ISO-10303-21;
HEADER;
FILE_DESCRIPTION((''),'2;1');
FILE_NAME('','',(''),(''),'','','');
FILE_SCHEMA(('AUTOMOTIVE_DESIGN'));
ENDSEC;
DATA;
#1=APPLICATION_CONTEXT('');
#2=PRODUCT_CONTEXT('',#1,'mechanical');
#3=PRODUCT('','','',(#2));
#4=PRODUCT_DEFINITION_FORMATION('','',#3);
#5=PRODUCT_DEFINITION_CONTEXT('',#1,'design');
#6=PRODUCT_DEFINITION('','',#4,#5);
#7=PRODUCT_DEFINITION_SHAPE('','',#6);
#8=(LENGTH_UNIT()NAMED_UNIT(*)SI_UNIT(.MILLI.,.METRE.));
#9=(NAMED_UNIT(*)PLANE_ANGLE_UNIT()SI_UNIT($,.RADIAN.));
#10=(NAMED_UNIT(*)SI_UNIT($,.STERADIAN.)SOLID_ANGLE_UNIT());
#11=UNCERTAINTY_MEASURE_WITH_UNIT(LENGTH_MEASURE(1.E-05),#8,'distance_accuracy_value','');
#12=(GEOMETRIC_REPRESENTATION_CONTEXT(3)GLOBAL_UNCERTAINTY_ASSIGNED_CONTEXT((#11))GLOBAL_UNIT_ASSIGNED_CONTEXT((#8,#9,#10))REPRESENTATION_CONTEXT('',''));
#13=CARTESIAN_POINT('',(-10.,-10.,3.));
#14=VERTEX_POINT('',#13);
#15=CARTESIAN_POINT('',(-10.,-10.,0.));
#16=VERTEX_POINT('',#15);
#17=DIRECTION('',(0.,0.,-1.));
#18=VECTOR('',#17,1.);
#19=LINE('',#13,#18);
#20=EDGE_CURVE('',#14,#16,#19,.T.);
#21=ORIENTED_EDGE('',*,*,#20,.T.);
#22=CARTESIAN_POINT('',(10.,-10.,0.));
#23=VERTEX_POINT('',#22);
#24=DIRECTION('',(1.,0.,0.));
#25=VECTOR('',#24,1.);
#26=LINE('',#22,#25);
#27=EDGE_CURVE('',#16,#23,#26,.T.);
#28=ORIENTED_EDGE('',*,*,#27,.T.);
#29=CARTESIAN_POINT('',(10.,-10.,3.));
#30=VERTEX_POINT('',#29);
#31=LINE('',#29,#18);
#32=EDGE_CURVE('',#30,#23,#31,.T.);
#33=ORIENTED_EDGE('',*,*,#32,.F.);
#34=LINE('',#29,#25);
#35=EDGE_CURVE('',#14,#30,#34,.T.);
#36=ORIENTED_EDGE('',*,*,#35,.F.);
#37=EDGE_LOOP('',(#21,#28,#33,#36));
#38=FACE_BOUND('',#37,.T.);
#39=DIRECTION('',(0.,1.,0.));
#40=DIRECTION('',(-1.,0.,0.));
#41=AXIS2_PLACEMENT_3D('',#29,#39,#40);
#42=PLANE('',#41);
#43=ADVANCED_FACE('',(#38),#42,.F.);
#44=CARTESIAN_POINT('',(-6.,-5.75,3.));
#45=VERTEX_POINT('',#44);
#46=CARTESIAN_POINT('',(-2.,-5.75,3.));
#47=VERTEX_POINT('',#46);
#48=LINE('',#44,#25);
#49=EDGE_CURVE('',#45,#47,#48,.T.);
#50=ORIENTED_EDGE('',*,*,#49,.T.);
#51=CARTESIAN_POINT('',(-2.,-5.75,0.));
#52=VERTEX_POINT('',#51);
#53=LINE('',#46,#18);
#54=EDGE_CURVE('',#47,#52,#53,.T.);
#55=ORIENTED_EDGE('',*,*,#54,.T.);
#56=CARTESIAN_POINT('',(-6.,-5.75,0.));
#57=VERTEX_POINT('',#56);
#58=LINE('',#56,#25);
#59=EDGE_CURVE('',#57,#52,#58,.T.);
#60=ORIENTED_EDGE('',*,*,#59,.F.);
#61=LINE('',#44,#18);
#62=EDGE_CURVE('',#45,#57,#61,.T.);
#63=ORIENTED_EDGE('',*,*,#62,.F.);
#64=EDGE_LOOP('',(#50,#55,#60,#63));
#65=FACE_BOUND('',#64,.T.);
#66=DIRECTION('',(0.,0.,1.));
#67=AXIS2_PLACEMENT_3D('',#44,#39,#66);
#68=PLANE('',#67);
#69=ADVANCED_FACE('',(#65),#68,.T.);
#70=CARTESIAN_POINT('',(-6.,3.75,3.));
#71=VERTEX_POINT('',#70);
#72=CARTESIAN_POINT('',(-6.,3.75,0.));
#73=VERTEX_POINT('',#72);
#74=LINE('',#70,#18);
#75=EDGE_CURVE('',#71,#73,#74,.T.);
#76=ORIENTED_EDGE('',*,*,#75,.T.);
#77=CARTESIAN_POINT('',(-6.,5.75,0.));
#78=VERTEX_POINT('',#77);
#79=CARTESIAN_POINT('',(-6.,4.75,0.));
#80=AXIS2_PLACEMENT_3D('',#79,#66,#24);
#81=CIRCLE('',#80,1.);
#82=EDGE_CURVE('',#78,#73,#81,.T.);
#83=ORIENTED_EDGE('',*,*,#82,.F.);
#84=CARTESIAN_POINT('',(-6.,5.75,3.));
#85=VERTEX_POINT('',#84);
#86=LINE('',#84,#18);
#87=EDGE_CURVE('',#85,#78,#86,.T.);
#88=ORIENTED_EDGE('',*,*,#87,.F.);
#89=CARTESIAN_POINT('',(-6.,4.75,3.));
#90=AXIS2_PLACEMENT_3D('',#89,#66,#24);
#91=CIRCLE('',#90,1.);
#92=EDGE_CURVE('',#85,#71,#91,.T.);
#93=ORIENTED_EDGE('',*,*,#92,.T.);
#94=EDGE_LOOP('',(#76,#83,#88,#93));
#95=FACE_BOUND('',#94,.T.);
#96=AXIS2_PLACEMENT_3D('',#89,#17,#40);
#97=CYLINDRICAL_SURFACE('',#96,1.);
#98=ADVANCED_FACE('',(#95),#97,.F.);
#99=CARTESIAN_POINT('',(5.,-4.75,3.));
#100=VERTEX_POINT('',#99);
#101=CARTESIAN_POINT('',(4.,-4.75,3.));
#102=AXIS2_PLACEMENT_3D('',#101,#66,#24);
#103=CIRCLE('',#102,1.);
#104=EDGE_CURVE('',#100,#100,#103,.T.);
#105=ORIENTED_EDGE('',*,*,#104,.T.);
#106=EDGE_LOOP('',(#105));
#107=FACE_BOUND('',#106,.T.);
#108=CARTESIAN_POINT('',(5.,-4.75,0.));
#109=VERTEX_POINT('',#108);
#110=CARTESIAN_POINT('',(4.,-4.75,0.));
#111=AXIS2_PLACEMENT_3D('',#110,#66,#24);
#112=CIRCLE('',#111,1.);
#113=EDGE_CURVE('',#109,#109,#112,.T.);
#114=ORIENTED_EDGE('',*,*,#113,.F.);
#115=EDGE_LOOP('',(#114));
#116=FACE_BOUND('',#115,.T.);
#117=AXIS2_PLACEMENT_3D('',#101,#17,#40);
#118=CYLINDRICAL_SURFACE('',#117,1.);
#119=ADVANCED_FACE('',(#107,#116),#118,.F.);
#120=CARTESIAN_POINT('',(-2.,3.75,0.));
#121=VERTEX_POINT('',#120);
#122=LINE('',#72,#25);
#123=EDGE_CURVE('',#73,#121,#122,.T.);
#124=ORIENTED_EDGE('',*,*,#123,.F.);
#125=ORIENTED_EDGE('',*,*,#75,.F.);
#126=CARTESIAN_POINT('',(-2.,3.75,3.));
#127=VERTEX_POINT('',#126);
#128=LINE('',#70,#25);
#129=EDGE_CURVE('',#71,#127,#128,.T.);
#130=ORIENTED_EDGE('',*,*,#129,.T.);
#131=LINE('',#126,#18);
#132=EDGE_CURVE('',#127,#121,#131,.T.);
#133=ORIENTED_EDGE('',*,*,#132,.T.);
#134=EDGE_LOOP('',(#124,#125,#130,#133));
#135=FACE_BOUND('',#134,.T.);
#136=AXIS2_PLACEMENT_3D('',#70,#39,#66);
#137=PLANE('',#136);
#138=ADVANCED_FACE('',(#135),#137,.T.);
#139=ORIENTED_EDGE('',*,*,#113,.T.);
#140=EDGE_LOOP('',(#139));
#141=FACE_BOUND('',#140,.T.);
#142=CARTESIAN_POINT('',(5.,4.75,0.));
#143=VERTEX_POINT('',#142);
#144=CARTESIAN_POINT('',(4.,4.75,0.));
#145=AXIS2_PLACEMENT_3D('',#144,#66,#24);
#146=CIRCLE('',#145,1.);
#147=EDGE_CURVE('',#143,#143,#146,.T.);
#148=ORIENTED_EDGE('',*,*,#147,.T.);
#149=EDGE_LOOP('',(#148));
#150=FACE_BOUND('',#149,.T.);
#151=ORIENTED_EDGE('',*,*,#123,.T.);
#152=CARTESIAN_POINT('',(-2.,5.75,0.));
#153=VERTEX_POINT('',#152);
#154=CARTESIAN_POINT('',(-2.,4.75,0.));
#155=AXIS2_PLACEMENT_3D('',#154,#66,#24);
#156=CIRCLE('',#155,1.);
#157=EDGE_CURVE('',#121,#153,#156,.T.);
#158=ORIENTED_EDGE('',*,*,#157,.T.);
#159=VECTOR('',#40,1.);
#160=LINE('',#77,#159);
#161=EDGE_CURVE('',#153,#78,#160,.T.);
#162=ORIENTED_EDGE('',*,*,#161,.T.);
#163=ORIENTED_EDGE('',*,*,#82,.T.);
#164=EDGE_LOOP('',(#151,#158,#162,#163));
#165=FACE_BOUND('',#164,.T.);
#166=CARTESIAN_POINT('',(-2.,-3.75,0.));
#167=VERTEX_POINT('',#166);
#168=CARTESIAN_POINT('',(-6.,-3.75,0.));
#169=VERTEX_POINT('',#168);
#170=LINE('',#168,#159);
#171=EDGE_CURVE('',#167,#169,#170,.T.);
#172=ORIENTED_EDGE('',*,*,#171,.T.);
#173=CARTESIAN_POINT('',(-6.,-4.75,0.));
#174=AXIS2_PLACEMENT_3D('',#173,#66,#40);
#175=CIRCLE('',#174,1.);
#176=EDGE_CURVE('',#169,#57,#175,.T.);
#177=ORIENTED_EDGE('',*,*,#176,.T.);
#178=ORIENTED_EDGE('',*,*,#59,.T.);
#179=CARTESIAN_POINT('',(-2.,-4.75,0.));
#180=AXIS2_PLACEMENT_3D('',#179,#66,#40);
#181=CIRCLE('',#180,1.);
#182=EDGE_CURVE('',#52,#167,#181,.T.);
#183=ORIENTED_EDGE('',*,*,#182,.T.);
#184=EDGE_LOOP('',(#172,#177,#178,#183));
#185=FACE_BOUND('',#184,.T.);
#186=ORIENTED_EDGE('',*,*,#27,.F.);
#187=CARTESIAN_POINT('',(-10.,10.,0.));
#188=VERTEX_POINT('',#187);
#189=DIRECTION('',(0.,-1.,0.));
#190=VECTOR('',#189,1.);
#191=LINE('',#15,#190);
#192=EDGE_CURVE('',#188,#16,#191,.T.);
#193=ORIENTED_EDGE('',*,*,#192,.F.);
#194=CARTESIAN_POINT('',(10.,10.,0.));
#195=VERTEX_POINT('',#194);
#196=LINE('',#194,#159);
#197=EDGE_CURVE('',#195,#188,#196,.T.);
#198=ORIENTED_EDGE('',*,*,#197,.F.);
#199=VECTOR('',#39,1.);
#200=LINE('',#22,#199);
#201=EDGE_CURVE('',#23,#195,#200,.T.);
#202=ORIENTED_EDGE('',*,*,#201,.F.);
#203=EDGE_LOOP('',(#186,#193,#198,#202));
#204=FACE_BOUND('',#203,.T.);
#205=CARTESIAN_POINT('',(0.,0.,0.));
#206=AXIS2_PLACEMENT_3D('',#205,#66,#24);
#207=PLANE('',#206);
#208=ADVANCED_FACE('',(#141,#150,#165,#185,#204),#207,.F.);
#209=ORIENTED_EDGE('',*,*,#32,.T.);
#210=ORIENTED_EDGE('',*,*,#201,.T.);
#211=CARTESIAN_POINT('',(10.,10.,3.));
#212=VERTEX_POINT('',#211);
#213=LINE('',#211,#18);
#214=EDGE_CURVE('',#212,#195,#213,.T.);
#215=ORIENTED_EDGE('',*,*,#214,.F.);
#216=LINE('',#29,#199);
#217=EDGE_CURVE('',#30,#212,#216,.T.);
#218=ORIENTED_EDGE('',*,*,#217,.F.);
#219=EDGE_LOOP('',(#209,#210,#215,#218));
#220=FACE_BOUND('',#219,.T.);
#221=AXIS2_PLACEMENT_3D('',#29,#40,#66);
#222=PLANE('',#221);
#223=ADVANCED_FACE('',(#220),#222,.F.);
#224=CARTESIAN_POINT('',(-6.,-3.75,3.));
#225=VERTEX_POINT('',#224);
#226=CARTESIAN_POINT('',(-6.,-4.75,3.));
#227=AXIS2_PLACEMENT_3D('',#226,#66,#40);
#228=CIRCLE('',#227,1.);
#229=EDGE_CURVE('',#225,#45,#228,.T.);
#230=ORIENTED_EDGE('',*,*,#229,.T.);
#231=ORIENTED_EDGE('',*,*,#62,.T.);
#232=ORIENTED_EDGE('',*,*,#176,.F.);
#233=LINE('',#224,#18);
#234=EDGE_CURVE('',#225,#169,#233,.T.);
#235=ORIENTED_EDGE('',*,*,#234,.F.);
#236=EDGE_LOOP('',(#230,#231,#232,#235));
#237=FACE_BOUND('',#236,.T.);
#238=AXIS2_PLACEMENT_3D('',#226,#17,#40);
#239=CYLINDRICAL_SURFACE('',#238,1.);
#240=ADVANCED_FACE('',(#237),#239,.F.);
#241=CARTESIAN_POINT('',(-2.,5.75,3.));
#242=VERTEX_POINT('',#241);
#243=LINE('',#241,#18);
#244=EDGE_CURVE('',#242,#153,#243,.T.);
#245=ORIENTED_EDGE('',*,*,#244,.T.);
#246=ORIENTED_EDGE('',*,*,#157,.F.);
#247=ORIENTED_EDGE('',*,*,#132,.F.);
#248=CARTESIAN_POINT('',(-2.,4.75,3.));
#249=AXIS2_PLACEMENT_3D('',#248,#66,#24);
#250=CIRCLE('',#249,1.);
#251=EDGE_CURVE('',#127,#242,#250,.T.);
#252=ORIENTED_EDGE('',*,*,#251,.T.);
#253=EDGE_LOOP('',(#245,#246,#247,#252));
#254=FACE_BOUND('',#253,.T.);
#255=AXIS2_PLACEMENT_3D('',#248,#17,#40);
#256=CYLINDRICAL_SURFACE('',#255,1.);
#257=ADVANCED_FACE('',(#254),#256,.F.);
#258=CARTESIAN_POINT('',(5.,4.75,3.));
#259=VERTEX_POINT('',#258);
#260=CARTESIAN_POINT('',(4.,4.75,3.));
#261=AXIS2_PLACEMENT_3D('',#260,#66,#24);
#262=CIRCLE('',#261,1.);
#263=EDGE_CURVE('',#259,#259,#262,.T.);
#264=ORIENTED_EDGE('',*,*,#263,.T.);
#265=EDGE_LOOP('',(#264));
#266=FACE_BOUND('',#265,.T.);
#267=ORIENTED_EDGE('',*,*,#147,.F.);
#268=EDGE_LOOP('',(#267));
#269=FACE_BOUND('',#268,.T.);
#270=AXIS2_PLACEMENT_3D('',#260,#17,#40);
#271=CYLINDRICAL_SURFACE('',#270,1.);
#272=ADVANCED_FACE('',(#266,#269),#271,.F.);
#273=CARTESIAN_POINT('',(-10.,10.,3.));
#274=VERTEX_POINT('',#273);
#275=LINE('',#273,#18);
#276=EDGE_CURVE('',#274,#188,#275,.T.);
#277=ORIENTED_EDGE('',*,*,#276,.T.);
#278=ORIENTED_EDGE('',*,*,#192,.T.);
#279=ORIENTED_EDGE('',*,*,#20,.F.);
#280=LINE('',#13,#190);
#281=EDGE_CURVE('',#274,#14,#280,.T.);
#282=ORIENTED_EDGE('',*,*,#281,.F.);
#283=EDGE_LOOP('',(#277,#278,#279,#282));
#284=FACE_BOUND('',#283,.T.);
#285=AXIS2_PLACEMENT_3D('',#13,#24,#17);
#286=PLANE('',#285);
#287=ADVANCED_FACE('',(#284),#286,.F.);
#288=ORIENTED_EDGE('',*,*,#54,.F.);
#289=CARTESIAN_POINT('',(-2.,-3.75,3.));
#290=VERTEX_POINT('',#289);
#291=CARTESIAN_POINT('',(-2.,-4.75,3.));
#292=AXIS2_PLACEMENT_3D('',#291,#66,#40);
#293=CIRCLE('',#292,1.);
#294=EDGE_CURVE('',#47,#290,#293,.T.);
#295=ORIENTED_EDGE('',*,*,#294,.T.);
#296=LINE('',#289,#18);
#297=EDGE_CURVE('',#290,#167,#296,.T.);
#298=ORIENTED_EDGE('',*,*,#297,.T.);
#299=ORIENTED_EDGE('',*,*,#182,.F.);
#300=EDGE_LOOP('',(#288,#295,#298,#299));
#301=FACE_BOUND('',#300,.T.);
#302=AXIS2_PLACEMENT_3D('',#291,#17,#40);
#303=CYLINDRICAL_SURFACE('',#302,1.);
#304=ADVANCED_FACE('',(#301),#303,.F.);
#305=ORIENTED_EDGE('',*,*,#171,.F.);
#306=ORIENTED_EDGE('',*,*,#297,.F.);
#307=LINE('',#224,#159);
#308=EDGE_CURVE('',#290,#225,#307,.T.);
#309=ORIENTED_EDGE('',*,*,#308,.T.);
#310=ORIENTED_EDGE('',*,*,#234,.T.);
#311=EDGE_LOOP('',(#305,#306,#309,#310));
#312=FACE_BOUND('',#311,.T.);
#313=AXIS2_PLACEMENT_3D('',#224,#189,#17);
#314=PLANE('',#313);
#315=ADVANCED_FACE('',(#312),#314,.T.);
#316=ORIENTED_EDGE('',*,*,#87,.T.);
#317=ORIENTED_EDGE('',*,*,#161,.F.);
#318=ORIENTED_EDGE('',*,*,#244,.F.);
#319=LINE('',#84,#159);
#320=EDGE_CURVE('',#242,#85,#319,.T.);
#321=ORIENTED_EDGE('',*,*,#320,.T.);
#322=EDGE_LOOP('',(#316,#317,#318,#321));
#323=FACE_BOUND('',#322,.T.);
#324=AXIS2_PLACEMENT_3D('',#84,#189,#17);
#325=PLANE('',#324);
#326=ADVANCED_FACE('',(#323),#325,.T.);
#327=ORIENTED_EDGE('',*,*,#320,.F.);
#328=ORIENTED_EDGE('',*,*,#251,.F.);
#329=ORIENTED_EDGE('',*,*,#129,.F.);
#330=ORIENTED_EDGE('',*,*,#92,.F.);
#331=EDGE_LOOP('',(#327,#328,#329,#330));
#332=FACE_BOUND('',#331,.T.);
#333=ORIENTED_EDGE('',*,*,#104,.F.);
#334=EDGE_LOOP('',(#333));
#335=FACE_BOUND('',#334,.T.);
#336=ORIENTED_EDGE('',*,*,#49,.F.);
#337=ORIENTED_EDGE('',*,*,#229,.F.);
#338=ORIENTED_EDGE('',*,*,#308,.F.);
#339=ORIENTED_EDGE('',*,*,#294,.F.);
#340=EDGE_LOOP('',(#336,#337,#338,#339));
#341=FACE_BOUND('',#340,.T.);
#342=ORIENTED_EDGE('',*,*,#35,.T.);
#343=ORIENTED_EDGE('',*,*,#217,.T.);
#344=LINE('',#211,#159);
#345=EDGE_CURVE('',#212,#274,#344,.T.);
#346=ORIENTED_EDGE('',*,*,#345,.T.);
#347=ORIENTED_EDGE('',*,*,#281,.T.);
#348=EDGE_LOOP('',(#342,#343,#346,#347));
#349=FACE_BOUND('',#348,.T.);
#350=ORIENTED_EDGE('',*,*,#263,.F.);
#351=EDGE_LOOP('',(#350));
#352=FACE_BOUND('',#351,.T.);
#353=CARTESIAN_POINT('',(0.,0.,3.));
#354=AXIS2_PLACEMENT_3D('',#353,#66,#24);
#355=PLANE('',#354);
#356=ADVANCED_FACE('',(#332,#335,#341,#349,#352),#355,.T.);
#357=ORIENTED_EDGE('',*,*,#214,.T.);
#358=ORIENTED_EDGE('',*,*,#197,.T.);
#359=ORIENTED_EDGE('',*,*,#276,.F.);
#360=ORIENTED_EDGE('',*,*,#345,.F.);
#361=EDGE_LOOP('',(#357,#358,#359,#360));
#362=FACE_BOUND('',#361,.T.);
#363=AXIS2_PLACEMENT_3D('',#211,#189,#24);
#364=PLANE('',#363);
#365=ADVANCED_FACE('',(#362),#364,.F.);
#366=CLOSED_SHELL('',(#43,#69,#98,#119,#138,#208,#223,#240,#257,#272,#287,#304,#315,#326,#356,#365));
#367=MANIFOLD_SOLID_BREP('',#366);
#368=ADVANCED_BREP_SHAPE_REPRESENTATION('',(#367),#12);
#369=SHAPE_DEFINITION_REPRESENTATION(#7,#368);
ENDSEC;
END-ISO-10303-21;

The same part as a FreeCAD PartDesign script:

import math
import FreeCAD as App
import Part
import Sketcher
from FreeCAD import Vector
Q = App.Units.Quantity


def add_polygon(sketch, points):
    """Adds a closed chain of lines whose ends are joined by coincident constraints."""
    first, n = sketch.GeometryCount, len(points)
    for a, b in zip(points, points[1:] + points[:1]):
        sketch.addGeometry(Part.LineSegment(App.Vector(*a, 0), App.Vector(*b, 0)), False)
    for i in range(n):
        sketch.addConstraint(Sketcher.Constraint("Coincident", first + i, 2, first + (i + 1) % n, 1))

doc = App.newDocument("Part")
params = doc.addObject("Spreadsheet::Sheet", "Params")
for row, (alias, value) in enumerate([
    ("sketch1_diameter", "2 mm"),
    ("sketch1_width", "20 mm"),
    ("sketch1_width2", "4 mm"),
    ("pad1_length", "3 mm"),
], start=1):
    params.set(f"A{row}", alias)
    params.set(f"B{row}", "=" + value)
    params.setAlias(f"B{row}", alias)

body = doc.addObject("PartDesign::Body", "Body")

# Sketch on XY plane
sketch1 = body.newObject("Sketcher::SketchObject", "Sketch")
sketch1.AttachmentSupport = (doc.getObject("XY_Plane"), [""])
sketch1.MapMode = "FlatFace"
add_polygon(sketch1, [(-10, 10), (-10, -10), (10, -10), (10, 10)])  # lines 0-3
sketch1.addGeometry(Part.LineSegment(Vector(-2, -5.8, 0), Vector(-6, -5.8, 0)), False)  # 4
sketch1.addGeometry(Part.ArcOfCircle(Part.Circle(Vector(-6, -4.8, 0), Vector(0, 0, 1), 1), math.radians(90), math.radians(270)), False)  # 5
sketch1.addGeometry(Part.LineSegment(Vector(-6, -3.8, 0), Vector(-2, -3.8, 0)), False)  # 6
sketch1.addGeometry(Part.ArcOfCircle(Part.Circle(Vector(-2, -4.8, 0), Vector(0, 0, 1), 1), math.radians(-90), math.radians(90)), False)  # 7
sketch1.addGeometry(Part.Circle(Vector(4, -4.8, 0), Vector(0, 0, 1), 1), False)  # 8
sketch1.addGeometry(Part.ArcOfCircle(Part.Circle(Vector(-6, 4.8, 0), Vector(0, 0, 1), 1), math.radians(90), math.radians(270)), False)  # 9
sketch1.addGeometry(Part.LineSegment(Vector(-6, 5.8, 0), Vector(-2, 5.8, 0)), False)  # 10
sketch1.addGeometry(Part.ArcOfCircle(Part.Circle(Vector(-2, 4.8, 0), Vector(0, 0, 1), 1), math.radians(-90), math.radians(90)), False)  # 11
sketch1.addGeometry(Part.LineSegment(Vector(-2, 3.8, 0), Vector(-6, 3.8, 0)), False)  # 12
sketch1.addGeometry(Part.Circle(Vector(4, 4.8, 0), Vector(0, 0, 1), 1), False)  # 13
sketch1.addConstraint([
    Sketcher.Constraint("Tangent", 4, 2, 5, 2),
    Sketcher.Constraint("Tangent", 5, 1, 6, 1),
    Sketcher.Constraint("Tangent", 6, 2, 7, 2),
    Sketcher.Constraint("Tangent", 7, 1, 4, 1),
    Sketcher.Constraint("Tangent", 9, 1, 10, 1),
    Sketcher.Constraint("Tangent", 10, 2, 11, 2),
    Sketcher.Constraint("Tangent", 11, 1, 12, 1),
    Sketcher.Constraint("Tangent", 12, 2, 9, 2),
    Sketcher.Constraint("Vertical", 0),
    Sketcher.Constraint("Horizontal", 1),
    Sketcher.Constraint("Vertical", 2),
    Sketcher.Constraint("Horizontal", 3),
    Sketcher.Constraint("Horizontal", 4),
    Sketcher.Constraint("Horizontal", 6),
    Sketcher.Constraint("Horizontal", 10),
    Sketcher.Constraint("Horizontal", 12),
    Sketcher.Constraint("Equal", 7, 8),
    Sketcher.Constraint("Equal", 8, 9),
    Sketcher.Constraint("Equal", 11, 13),
    Sketcher.Constraint("Symmetric", 0, 2, 2, 2, -1, 1),
    Sketcher.Constraint("Symmetric", 5, 3, 9, 3, -1),
    Sketcher.Constraint("Symmetric", 8, 3, 13, 3, -1),
    Sketcher.Constraint("Horizontal", 7, 3, 8, 3),
    Sketcher.Constraint("Vertical", 7, 3, 11, 3),
    Sketcher.Constraint("Equal", 3, 0),
    Sketcher.Constraint("Diameter", 8, Q("2 mm")),
    Sketcher.Constraint("DistanceX", 1, 1, 1, 2, Q("20 mm")),
    Sketcher.Constraint("DistanceX", 4, 2, 4, 1, Q("4 mm")),
    Sketcher.Constraint("DistanceX", 5, 3, -1, 1, Q("6 mm")),
    Sketcher.Constraint("DistanceX", -1, 1, 8, 3, Q("4 mm")),
    Sketcher.Constraint("DistanceY", 5, 3, 9, 3, Q("9.5 mm")),
])
sketch1.setExpression("Constraints[29]", "Params.sketch1_diameter")
sketch1.setExpression("Constraints[30]", "Params.sketch1_width")
sketch1.setExpression("Constraints[31]", "Params.sketch1_width2")
pad1 = body.newObject("PartDesign::Pad", "Pad")
pad1.Profile = sketch1
pad1.setExpression("Length", "Params.pad1_length")

doc.recompute()
